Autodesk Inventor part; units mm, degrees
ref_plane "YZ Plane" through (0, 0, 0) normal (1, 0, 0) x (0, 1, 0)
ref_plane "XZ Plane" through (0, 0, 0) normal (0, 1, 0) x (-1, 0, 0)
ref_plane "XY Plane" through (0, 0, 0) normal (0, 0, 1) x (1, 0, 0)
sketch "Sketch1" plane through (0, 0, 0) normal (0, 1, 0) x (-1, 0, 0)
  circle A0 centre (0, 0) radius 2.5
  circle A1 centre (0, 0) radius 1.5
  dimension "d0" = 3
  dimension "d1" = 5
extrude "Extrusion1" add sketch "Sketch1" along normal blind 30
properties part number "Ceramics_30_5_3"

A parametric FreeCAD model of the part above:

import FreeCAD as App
import Part
import Sketcher
from FreeCAD import Vector
Q = App.Units.Quantity

doc = App.newDocument("Part")
body = doc.addObject("PartDesign::Body", "Body")

sketch1 = doc.addObject("Sketcher::SketchObject", "Sketch")
body.addObject(sketch1)
sketch1.AttachmentSupport = (doc.XZ_Plane, [""])
sketch1.MapMode = "FlatFace"
sketch1.addGeometry(Part.Circle(Vector(0, 0, 0), Vector(0, 0, 1), 2.5), False)
sketch1.addGeometry(Part.Circle(Vector(0, 0, 0), Vector(0, 0, 1), 1.5), False)
sketch1.addConstraint(Sketcher.Constraint("Coincident", 0, 3, -1, 1))
sketch1.addConstraint(Sketcher.Constraint("Coincident", 1, 3, -1, 1))
sketch1.addConstraint(Sketcher.Constraint("Diameter", 0, Q("5 mm")))
sketch1.addConstraint(Sketcher.Constraint("Diameter", 1, Q("3 mm")))
pad1 = doc.addObject("PartDesign::Pad", "Pad")
body.addObject(pad1)
pad1.Profile = sketch1
pad1.Length = 30
pad1.Reversed = True

doc.recompute()
